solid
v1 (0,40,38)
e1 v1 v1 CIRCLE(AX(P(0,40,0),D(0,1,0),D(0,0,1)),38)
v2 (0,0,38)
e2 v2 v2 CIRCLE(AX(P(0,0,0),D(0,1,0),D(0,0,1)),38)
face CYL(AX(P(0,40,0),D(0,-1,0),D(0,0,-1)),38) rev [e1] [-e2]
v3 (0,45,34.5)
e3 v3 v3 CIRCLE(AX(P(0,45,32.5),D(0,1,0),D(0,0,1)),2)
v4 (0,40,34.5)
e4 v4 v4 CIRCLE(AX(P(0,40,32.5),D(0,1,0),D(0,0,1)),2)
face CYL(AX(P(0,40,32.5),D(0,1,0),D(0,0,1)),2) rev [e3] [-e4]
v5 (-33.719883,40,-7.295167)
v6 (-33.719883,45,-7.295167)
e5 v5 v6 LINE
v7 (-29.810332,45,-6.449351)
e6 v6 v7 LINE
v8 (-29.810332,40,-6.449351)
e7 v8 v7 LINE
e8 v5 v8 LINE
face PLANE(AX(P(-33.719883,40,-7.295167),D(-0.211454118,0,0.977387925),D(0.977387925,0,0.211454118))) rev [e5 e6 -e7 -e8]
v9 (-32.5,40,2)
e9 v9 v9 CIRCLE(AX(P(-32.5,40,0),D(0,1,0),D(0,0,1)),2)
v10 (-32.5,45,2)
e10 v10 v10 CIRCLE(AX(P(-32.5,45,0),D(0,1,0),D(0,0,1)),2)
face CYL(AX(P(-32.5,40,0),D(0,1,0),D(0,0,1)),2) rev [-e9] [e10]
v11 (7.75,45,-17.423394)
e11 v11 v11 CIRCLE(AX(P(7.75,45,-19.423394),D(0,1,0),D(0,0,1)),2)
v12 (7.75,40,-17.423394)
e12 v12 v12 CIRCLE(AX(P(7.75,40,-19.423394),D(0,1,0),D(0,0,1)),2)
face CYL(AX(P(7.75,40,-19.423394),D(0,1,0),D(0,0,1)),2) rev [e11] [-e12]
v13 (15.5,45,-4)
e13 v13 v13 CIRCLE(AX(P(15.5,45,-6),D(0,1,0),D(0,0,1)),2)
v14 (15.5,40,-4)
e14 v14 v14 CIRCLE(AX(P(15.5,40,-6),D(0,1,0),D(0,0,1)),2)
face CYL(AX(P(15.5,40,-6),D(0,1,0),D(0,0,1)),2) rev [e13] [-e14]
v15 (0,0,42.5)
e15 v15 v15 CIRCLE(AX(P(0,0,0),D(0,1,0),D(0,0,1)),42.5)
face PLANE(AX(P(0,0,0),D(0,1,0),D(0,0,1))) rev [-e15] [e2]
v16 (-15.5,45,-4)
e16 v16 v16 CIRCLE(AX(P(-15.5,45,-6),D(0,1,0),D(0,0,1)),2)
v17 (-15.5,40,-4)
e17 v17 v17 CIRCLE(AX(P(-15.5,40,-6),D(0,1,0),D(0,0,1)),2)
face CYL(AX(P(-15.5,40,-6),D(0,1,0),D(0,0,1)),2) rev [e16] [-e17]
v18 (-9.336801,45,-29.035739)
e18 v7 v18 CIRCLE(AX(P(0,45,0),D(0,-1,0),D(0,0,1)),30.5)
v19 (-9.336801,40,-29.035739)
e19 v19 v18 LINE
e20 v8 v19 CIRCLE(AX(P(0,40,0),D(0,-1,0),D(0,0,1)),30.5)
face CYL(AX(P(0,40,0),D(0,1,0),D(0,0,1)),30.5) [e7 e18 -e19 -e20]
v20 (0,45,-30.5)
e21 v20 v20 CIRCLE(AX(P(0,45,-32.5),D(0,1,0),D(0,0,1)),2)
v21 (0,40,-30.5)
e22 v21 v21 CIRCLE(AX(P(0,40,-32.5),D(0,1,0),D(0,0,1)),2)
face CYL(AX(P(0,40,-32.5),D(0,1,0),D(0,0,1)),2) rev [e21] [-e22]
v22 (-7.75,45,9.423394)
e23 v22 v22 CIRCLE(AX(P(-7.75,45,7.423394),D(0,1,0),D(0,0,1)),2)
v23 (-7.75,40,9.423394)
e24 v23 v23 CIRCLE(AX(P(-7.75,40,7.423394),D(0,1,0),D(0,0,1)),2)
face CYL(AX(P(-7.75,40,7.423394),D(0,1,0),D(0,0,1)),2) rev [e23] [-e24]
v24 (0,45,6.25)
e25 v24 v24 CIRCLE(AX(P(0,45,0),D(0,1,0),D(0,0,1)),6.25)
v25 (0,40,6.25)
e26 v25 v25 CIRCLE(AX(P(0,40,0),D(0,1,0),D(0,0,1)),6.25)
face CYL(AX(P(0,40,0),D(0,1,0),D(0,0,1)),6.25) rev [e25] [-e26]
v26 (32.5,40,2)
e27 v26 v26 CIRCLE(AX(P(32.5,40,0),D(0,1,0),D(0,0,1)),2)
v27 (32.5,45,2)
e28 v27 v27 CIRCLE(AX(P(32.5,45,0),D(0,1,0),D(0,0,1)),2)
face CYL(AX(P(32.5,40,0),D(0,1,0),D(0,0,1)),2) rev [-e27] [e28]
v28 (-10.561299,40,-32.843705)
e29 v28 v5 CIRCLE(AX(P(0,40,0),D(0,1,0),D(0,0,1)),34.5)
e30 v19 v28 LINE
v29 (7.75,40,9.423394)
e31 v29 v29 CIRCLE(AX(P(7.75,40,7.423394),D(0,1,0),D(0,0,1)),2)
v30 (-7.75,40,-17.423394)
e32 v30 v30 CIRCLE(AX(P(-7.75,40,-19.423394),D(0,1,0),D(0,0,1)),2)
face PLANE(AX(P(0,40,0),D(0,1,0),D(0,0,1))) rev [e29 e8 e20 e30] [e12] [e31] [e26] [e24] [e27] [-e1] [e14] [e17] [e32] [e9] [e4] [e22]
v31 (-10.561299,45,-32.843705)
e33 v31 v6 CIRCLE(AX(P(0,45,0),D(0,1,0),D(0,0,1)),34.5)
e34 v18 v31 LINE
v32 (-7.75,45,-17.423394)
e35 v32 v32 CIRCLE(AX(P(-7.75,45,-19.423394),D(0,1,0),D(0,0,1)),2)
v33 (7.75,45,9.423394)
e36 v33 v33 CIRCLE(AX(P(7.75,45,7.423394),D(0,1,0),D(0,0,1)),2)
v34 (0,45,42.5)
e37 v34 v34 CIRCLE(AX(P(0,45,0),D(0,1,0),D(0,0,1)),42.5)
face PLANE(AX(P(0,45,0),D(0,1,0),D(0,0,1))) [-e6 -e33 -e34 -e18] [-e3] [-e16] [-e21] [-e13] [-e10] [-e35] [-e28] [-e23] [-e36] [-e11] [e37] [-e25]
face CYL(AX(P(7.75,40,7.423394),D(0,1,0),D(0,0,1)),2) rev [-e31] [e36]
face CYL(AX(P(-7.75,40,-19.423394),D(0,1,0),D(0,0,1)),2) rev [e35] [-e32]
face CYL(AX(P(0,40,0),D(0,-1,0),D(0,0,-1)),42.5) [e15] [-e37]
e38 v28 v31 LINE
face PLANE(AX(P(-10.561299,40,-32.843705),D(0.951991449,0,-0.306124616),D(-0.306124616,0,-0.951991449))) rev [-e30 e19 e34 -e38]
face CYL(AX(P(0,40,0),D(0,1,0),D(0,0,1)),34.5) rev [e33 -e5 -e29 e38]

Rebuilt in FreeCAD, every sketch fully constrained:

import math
import FreeCAD as App
import Part
import Sketcher

V = App.Vector
Q = App.Units.Quantity

doc = App.newDocument("Part")
body = doc.addObject("PartDesign::Body", "Body")

# Sketch on XZ plane
sketch1 = body.newObject("Sketcher::SketchObject", "Sketch")
sketch1.AttachmentSupport = (doc.getObject("XZ_Plane"), [""])
sketch1.MapMode = "FlatFace"
sketch1.addGeometry([
    Part.Circle(V(0, 0, 0), V(0, 0, 1), 42.5),
    Part.Circle(V(0, 0, 0), V(0, 0, 1), 38),
], False)
sketch1.addConstraint([
    Sketcher.Constraint("Coincident", 0, 3, -1, 1),
    Sketcher.Constraint("Coincident", 1, 3, -1, 1),
    Sketcher.Constraint("Diameter", 0, Q("85 mm")),
    Sketcher.Constraint("Diameter", 1, Q("76 mm")),
])
pad1 = body.newObject("PartDesign::Pad", "Pad")
pad1.Profile = sketch1
pad1.Length = 40
pad1.Reversed = True

# Sketch on XZ plane
sketch2 = body.newObject("Sketcher::SketchObject", "Sketch001")
sketch2.AttachmentSupport = (doc.getObject("XZ_Plane"), [""])
sketch2.MapMode = "FlatFace"
sketch2.AttachmentOffset = App.Placement(V(0, 0, -40), App.Rotation())
sketch2.addGeometry(Part.Circle(V(0, 0, 0), V(0, 0, 1), 42.5), False)
sketch2.addConstraint([
    Sketcher.Constraint("Coincident", 0, 3, -1, 1),
    Sketcher.Constraint("Diameter", 0, Q("85 mm")),
])
pad2 = body.newObject("PartDesign::Pad", "Pad001")
pad2.Profile = sketch2
pad2.Length = 5
pad2.Reversed = True

# Sketch on XZ plane
sketch3 = body.newObject("Sketcher::SketchObject", "Sketch002")
sketch3.AttachmentSupport = (doc.getObject("XZ_Plane"), [""])
sketch3.MapMode = "FlatFace"
sketch3.AttachmentOffset = App.Placement(V(0, 0, -45), App.Rotation())
sketch3.addGeometry([
    Part.Circle(V(0, -32.5, 0), V(0, 0, 1), 2),  # 0
    Part.Circle(V(-32.5, 0, 0), V(0, 0, 1), 2),  # 1
    Part.Circle(V(32.5, 0, 0), V(0, 0, 1), 2),  # 2
    Part.Circle(V(0, 32.5, 0), V(0, 0, 1), 2),  # 3
    Part.Circle(V(0, 0, 0), V(0, 0, 1), 6.25),  # 4
    Part.Circle(V(-15.5, -6, 0), V(0, 0, 1), 2),  # 5
    Part.Circle(V(-7.75, -19.423394, 0), V(0, 0, 1), 2),  # 6
    Part.Circle(V(7.75, -19.423394, 0), V(0, 0, 1), 2),  # 7
    Part.Circle(V(15.5, -6, 0), V(0, 0, 1), 2),  # 8
    Part.Circle(V(7.75, 7.423394, 0), V(0, 0, 1), 2),  # 9
    Part.Circle(V(-7.75, 7.423394, 0), V(0, 0, 1), 2),  # 10
], False)
sketch3.addConstraint([
    Sketcher.Constraint("Coincident", 4, 3, -1, 1),
    Sketcher.Constraint("Equal", 0, 1),
    Sketcher.Constraint("Equal", 1, 2),
    Sketcher.Constraint("Equal", 2, 3),
    Sketcher.Constraint("Equal", 3, 5),
    Sketcher.Constraint("Equal", 5, 6),
    Sketcher.Constraint("Equal", 6, 7),
    Sketcher.Constraint("Equal", 7, 8),
    Sketcher.Constraint("Equal", 8, 9),
    Sketcher.Constraint("Equal", 9, 10),
    Sketcher.Constraint("Symmetric", 1, 3, 2, 3, -1, 1),
    Sketcher.Constraint("Symmetric", 0, 3, 3, 3, -1, 1),
    Sketcher.Constraint("Symmetric", 6, 3, 7, 3, -2),
    Sketcher.Constraint("Symmetric", 5, 3, 8, 3, -2),
    Sketcher.Constraint("Symmetric", 9, 3, 10, 3, -2),
    Sketcher.Constraint("PointOnObject", 0, 3, -2),
    Sketcher.Constraint("PointOnObject", 1, 3, -1),
    Sketcher.Constraint("Vertical", 7, 3, 9, 3),
    Sketcher.Constraint("Diameter", 0, Q("4 mm")),
    Sketcher.Constraint("Diameter", 4, Q("12.5 mm")),
    Sketcher.Constraint("DistanceY", 5, 3, -1, 1, Q("6 mm")),
    Sketcher.Constraint("DistanceX", 1, 3, 2, 3, Q("65 mm")),
    Sketcher.Constraint("DistanceY", 0, 3, 3, 3, Q("65 mm")),
    Sketcher.Constraint("DistanceX", 1, 3, 5, 3, Q("17 mm")),
    Sketcher.Constraint("DistanceX", 6, 3, 7, 3, Q("15.5 mm")),
    Sketcher.Constraint("DistanceY", 6, 3, -1, 1, Q("19.423394 mm")),
    Sketcher.Constraint("DistanceY", -1, 1, 9, 3, Q("7.423394 mm")),
])
pocket1 = body.newObject("PartDesign::Pocket", "Pocket")
pocket1.Profile = sketch3
pocket1.Length = 5
pocket1.Reversed = True

# Sketch on XZ plane
sketch4 = body.newObject("Sketcher::SketchObject", "Sketch003")
sketch4.AttachmentSupport = (doc.getObject("XZ_Plane"), [""])
sketch4.MapMode = "FlatFace"
sketch4.AttachmentOffset = App.Placement(V(0, 0, -45), App.Rotation())
sketch4.addGeometry([
    Part.LineSegment(V(-33.719883, -7.295167, 0), V(-29.810332, -6.449351, 0)),
    Part.ArcOfCircle(Part.Circle(V(0, 0, 0), V(0, 0, 1), 30.5), math.radians(-167.792419), math.radians(-107.825836)),
    Part.LineSegment(V(-9.336801, -29.035739, 0), V(-10.561299, -32.843705, 0)),
    Part.ArcOfCircle(Part.Circle(V(0, 0, 0), V(0, 0, 1), 34.5), math.radians(-167.792419), math.radians(-107.825836)),
], False)
sketch4.addConstraint([
    Sketcher.Constraint("Coincident", 0, 2, 1, 1),
    Sketcher.Constraint("Coincident", 1, 2, 2, 1),
    Sketcher.Constraint("Coincident", 2, 2, 3, 2),
    Sketcher.Constraint("Coincident", 3, 1, 0, 1),
    Sketcher.Constraint("Coincident", 1, 3, -1, 1),
    Sketcher.Constraint("Coincident", 3, 3, -1, 1),
    Sketcher.Constraint("Radius", 1, Q("30.5 mm")),
    Sketcher.Constraint("Radius", 3, Q("34.5 mm")),
    Sketcher.Constraint("DistanceX", 1, 2, -1, 1, Q("9.336801 mm")),
    Sketcher.Constraint("DistanceX", 2, 2, -1, 1, Q("10.561299 mm")),
    Sketcher.Constraint("DistanceX", 0, 2, -1, 1, Q("29.810332 mm")),
    Sketcher.Constraint("DistanceX", 3, 1, 0, 2, Q("3.909552 mm")),
])
pocket2 = body.newObject("PartDesign::Pocket", "Pocket001")
pocket2.Profile = sketch4
pocket2.Length = 5
pocket2.Reversed = True

doc.recompute()
